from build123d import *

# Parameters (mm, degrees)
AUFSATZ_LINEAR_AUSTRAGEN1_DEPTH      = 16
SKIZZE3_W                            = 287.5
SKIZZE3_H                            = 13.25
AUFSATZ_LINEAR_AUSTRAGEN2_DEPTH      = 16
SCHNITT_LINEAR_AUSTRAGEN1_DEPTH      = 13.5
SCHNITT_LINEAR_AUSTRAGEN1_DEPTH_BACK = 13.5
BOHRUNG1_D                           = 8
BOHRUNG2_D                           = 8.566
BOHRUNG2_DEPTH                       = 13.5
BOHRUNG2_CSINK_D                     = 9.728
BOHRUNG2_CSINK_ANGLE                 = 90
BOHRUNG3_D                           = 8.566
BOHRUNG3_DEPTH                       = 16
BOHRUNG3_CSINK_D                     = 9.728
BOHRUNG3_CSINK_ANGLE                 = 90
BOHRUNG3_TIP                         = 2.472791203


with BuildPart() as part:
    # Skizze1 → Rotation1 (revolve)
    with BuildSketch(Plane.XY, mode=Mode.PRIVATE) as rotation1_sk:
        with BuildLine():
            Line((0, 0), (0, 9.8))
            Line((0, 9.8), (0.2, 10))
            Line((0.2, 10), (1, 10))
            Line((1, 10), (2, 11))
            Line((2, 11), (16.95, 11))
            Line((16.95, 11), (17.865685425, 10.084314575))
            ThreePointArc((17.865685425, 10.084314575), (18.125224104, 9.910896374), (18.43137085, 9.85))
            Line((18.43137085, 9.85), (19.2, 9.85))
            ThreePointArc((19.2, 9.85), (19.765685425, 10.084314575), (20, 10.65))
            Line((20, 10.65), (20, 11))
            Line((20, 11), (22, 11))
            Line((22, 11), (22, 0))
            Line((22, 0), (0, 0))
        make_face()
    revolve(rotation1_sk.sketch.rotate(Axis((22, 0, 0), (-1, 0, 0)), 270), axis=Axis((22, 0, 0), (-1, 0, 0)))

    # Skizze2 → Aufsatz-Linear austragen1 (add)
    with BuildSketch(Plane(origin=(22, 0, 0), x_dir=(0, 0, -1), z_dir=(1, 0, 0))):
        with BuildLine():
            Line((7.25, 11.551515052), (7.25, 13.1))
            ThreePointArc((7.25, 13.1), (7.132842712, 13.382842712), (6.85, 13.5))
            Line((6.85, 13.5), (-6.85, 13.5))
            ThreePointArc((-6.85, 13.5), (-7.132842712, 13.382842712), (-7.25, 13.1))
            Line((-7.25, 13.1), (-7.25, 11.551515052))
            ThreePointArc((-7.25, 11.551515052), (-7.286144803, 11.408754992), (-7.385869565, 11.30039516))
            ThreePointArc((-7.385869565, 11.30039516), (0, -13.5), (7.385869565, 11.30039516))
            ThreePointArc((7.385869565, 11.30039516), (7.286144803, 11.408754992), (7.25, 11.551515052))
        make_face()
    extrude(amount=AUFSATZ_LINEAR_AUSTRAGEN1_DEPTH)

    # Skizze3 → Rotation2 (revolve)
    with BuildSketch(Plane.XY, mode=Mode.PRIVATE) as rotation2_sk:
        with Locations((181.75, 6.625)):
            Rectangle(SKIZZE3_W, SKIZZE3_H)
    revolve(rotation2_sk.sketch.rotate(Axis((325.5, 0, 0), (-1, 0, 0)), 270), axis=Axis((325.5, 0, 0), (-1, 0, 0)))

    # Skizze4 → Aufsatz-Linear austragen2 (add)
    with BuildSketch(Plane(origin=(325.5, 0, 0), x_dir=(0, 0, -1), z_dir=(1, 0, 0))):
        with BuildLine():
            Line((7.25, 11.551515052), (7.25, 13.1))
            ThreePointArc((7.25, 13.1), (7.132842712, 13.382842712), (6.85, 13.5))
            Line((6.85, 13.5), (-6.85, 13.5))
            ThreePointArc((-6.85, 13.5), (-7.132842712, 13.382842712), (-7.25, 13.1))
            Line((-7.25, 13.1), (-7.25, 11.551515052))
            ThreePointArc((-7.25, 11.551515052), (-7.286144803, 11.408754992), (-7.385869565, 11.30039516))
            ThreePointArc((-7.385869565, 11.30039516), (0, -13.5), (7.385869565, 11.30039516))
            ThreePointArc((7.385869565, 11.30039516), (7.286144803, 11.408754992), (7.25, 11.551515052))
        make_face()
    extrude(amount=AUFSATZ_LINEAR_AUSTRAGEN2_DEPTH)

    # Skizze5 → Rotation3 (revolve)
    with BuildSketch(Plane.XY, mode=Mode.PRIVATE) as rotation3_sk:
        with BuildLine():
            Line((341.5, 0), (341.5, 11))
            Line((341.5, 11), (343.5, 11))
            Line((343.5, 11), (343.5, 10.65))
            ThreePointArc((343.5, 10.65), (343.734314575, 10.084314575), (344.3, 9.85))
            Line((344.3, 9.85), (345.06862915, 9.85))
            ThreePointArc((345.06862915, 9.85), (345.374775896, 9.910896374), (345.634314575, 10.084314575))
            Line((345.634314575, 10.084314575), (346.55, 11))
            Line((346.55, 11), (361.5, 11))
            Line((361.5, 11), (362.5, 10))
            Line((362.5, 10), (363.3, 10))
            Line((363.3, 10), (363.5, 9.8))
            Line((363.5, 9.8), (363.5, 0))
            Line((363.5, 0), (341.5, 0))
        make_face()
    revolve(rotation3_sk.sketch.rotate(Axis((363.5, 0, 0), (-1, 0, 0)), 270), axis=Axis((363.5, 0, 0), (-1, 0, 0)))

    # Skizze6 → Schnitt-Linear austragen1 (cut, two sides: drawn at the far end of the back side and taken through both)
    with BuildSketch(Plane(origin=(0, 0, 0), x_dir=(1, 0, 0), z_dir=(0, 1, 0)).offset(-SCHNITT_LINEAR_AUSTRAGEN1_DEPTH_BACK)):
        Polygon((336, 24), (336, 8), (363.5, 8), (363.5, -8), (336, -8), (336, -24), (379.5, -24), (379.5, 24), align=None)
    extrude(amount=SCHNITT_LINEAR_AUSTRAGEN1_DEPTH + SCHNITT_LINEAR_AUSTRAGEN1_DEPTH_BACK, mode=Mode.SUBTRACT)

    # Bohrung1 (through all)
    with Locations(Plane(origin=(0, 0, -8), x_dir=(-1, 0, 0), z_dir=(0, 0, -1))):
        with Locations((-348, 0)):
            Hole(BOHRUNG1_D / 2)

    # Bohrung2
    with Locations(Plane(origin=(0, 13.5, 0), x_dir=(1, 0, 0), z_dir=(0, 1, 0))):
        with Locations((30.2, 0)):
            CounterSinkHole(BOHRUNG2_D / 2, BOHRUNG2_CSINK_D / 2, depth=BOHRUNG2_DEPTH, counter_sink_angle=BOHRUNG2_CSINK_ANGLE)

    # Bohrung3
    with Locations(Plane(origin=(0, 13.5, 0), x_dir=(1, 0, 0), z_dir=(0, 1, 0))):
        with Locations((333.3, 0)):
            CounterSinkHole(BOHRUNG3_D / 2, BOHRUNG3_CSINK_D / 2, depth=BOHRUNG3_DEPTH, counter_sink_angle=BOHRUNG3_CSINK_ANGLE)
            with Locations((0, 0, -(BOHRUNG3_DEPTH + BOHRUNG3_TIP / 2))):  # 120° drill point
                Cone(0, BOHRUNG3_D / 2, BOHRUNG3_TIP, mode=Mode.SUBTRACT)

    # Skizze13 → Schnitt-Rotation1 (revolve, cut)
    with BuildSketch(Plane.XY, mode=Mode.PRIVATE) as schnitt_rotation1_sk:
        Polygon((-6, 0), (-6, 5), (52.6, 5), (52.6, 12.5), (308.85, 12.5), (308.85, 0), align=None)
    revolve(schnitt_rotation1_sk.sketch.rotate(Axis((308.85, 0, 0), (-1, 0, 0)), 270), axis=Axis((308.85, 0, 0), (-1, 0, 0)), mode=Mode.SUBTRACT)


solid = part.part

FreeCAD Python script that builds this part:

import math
import FreeCAD as App
import Part
import Sketcher
from FreeCAD import Vector
Q = App.Units.Quantity


def add_polygon(sketch, points):
    """Adds a closed chain of lines whose ends are joined by coincident constraints."""
    first, n = sketch.GeometryCount, len(points)
    for a, b in zip(points, points[1:] + points[:1]):
        sketch.addGeometry(Part.LineSegment(App.Vector(*a, 0), App.Vector(*b, 0)), False)
    for i in range(n):
        sketch.addConstraint(Sketcher.Constraint("Coincident", first + i, 2, first + (i + 1) % n, 1))

doc = App.newDocument("Part")
body = doc.addObject("PartDesign::Body", "Body")

# Sketch on XY plane
sketch1 = body.newObject("Sketcher::SketchObject", "Sketch")
sketch1.AttachmentSupport = (doc.getObject("XY_Plane"), [""])
sketch1.MapMode = "FlatFace"
sketch1.addGeometry(Part.LineSegment(Vector(0, 9.8, 0), Vector(0, 0, 0)), False)
sketch1.addGeometry(Part.LineSegment(Vector(0, 0, 0), Vector(22, 0, 0)), False)
sketch1.addGeometry(Part.LineSegment(Vector(22, 0, 0), Vector(22, 11, 0)), False)
sketch1.addGeometry(Part.LineSegment(Vector(22, 11, 0), Vector(20, 11, 0)), False)
sketch1.addGeometry(Part.LineSegment(Vector(20, 11, 0), Vector(20, 10.65, 0)), False)
sketch1.addGeometry(Part.ArcOfCircle(Part.Circle(Vector(19.2, 10.65, 0), Vector(0, 0, 1), 0.8), math.radians(-90), math.radians(0)), False)
sketch1.addGeometry(Part.LineSegment(Vector(19.2, 9.85, 0), Vector(18.431371, 9.85, 0)), False)
sketch1.addGeometry(Part.ArcOfCircle(Part.Circle(Vector(18.431371, 10.65, 0), Vector(0, 0, 1), 0.8), math.radians(-135), math.radians(-90)), False)
sketch1.addGeometry(Part.LineSegment(Vector(17.865685, 10.084315, 0), Vector(16.95, 11, 0)), False)
sketch1.addGeometry(Part.LineSegment(Vector(16.95, 11, 0), Vector(2, 11, 0)), False)
sketch1.addGeometry(Part.LineSegment(Vector(2, 11, 0), Vector(1, 10, 0)), False)
sketch1.addGeometry(Part.LineSegment(Vector(1, 10, 0), Vector(0.2, 10, 0)), False)
sketch1.addGeometry(Part.LineSegment(Vector(0.2, 10, 0), Vector(0, 9.8, 0)), False)
sketch1.addConstraint(Sketcher.Constraint("Coincident", 0, 2, 1, 1))
sketch1.addConstraint(Sketcher.Constraint("Coincident", 1, 2, 2, 1))
sketch1.addConstraint(Sketcher.Constraint("Coincident", 2, 2, 3, 1))
sketch1.addConstraint(Sketcher.Constraint("Coincident", 3, 2, 4, 1))
sketch1.addConstraint(Sketcher.Constraint("Tangent", 4, 2, 5, 2))
sketch1.addConstraint(Sketcher.Constraint("Tangent", 5, 1, 6, 1))
sketch1.addConstraint(Sketcher.Constraint("Tangent", 6, 2, 7, 2))
sketch1.addConstraint(Sketcher.Constraint("Tangent", 7, 1, 8, 1))
sketch1.addConstraint(Sketcher.Constraint("Coincident", 8, 2, 9, 1))
sketch1.addConstraint(Sketcher.Constraint("Coincident", 9, 2, 10, 1))
sketch1.addConstraint(Sketcher.Constraint("Coincident", 10, 2, 11, 1))
sketch1.addConstraint(Sketcher.Constraint("Coincident", 11, 2, 12, 1))
sketch1.addConstraint(Sketcher.Constraint("Coincident", 12, 2, 0, 1))
sketch1.addConstraint(Sketcher.Constraint("Vertical", 0))
sketch1.addConstraint(Sketcher.Constraint("Horizontal", 1))
sketch1.addConstraint(Sketcher.Constraint("Vertical", 2))
sketch1.addConstraint(Sketcher.Constraint("Horizontal", 3))
sketch1.addConstraint(Sketcher.Constraint("Vertical", 4))
sketch1.addConstraint(Sketcher.Constraint("Horizontal", 6))
sketch1.addConstraint(Sketcher.Constraint("Horizontal", 9))
sketch1.addConstraint(Sketcher.Constraint("Horizontal", 11))
sketch1.addConstraint(Sketcher.Constraint("Coincident", 0, 2, -1, 1))
sketch1.addConstraint(Sketcher.Constraint("Equal", 5, 7))
sketch1.addConstraint(Sketcher.Constraint("Perpendicular", 8, 10))
sketch1.addConstraint(Sketcher.Constraint("Parallel", 10, 12))
sketch1.addConstraint(Sketcher.Constraint("Horizontal", 3, 2, 8, 2))
sketch1.addConstraint(Sketcher.Constraint("Radius", 5, 0.8))
sketch1.addConstraint(Sketcher.Constraint("DistanceX", 1, 1, 1, 2, 22.0))
sketch1.addConstraint(Sketcher.Constraint("DistanceX", 3, 2, 3, 1, 2.0))
sketch1.addConstraint(Sketcher.Constraint("DistanceY", 2, 1, 2, 2, 11.0))
sketch1.addConstraint(Sketcher.Constraint("Angle", 8, Q("135 deg")))
sketch1.addConstraint(Sketcher.Constraint("DistanceX", 11, 2, 11, 1, 0.8))
sketch1.addConstraint(Sketcher.Constraint("DistanceY", 0, 2, 0, 1, 9.8))
sketch1.addConstraint(Sketcher.Constraint("DistanceX", -1, 1, 10, 2, 1.0))
sketch1.addConstraint(Sketcher.Constraint("DistanceX", 9, 2, 9, 1, 14.95))
sketch1.addConstraint(Sketcher.Constraint("DistanceY", 4, 2, 4, 1, 0.35))
revolution = body.newObject("PartDesign::Revolution", "Revolution")
revolution.Profile = sketch1
revolution.ReferenceAxis = (sketch1, ["H_Axis"])
revolution.Angle = 360

# Sketch on YZ plane
sketch2 = body.newObject("Sketcher::SketchObject", "Sketch001")
sketch2.AttachmentSupport = (doc.getObject("YZ_Plane"), [""])
sketch2.MapMode = "FlatFace"
sketch2.AttachmentOffset = App.Placement(Vector(0, 0, 22), App.Rotation())
sketch2.addGeometry(Part.LineSegment(Vector(11.551515, -7.25, 0), Vector(13.1, -7.25, 0)), False)
sketch2.addGeometry(Part.ArcOfCircle(Part.Circle(Vector(13.1, -6.85, 0), Vector(0, 0, 1), 0.4), math.radians(-90), math.radians(0)), False)
sketch2.addGeometry(Part.LineSegment(Vector(13.5, -6.85, 0), Vector(13.5, 6.85, 0)), False)
sketch2.addGeometry(Part.ArcOfCircle(Part.Circle(Vector(13.1, 6.85, 0), Vector(0, 0, 1), 0.4), math.radians(0), math.radians(90)), False)
sketch2.addGeometry(Part.LineSegment(Vector(13.1, 7.25, 0), Vector(11.551515, 7.25, 0)), False)
sketch2.addGeometry(Part.ArcOfCircle(Part.Circle(Vector(11.551515, 7.55, 0), Vector(0, 0, 1), 0.3), math.radians(-146.831613), math.radians(-90)), False)
sketch2.addGeometry(Part.ArcOfCircle(Part.Circle(Vector(0, 0, 0), Vector(0, 0, 1), 13.5), math.radians(33.168387), math.radians(326.831613)), False)
sketch2.addGeometry(Part.ArcOfCircle(Part.Circle(Vector(11.551515, -7.55, 0), Vector(0, 0, 1), 0.3), math.radians(90), math.radians(146.831613)), False)
sketch2.addConstraint(Sketcher.Constraint("Tangent", 0, 2, 1, 1))
sketch2.addConstraint(Sketcher.Constraint("Tangent", 1, 2, 2, 1))
sketch2.addConstraint(Sketcher.Constraint("Tangent", 2, 2, 3, 1))
sketch2.addConstraint(Sketcher.Constraint("Tangent", 3, 2, 4, 1))
sketch2.addConstraint(Sketcher.Constraint("Tangent", 4, 2, 5, 2))
sketch2.addConstraint(Sketcher.Constraint("Tangent", 5, 1, 6, 1))
sketch2.addConstraint(Sketcher.Constraint("Tangent", 6, 2, 7, 2))
sketch2.addConstraint(Sketcher.Constraint("Tangent", 7, 1, 0, 1))
sketch2.addConstraint(Sketcher.Constraint("Horizontal", 0))
sketch2.addConstraint(Sketcher.Constraint("Vertical", 2))
sketch2.addConstraint(Sketcher.Constraint("Horizontal", 4))
sketch2.addConstraint(Sketcher.Constraint("Coincident", 6, 3, -1, 1))
sketch2.addConstraint(Sketcher.Constraint("Equal", 1, 3))
sketch2.addConstraint(Sketcher.Constraint("Equal", 5, 7))
sketch2.addConstraint(Sketcher.Constraint("Vertical", 5, 3, 7, 3))
sketch2.addConstraint(Sketcher.Constraint("Radius", 1, 0.4))
sketch2.addConstraint(Sketcher.Constraint("Radius", 5, 0.3))
sketch2.addConstraint(Sketcher.Constraint("Radius", 6, 13.5))
sketch2.addConstraint(Sketcher.Constraint("DistanceY", 2, 1, 2, 2, 13.7))
sketch2.addConstraint(Sketcher.Constraint("DistanceX", -1, 1, 1, 3, 13.1))
pad1 = body.newObject("PartDesign::Pad", "Pad")
pad1.Profile = sketch2
pad1.Length = 16

# Sketch on XY plane
sketch3 = body.newObject("Sketcher::SketchObject", "Sketch002")
sketch3.AttachmentSupport = (doc.getObject("XY_Plane"), [""])
sketch3.MapMode = "FlatFace"
add_polygon(sketch3, [(38, 13.25), (38, 0), (325.5, 0), (325.5, 13.25)])  # lines 0-3
sketch3.addConstraint(Sketcher.Constraint("Vertical", 0))
sketch3.addConstraint(Sketcher.Constraint("Horizontal", 1))
sketch3.addConstraint(Sketcher.Constraint("Vertical", 2))
sketch3.addConstraint(Sketcher.Constraint("Horizontal", 3))
sketch3.addConstraint(Sketcher.Constraint("PointOnObject", 0, 2, -1))
sketch3.addConstraint(Sketcher.Constraint("DistanceX", 1, 1, 1, 2, 287.5))
sketch3.addConstraint(Sketcher.Constraint("DistanceX", -1, 1, 0, 2, 38.0))
sketch3.addConstraint(Sketcher.Constraint("DistanceY", 0, 2, 0, 1, 13.25))
revolution2 = body.newObject("PartDesign::Revolution", "Revolution001")
revolution2.Profile = sketch3
revolution2.ReferenceAxis = (sketch3, ["H_Axis"])
revolution2.Angle = 360

# Sketch on YZ plane
sketch4 = body.newObject("Sketcher::SketchObject", "Sketch003")
sketch4.AttachmentSupport = (doc.getObject("YZ_Plane"), [""])
sketch4.MapMode = "FlatFace"
sketch4.AttachmentOffset = App.Placement(Vector(0, 0, 325.5), App.Rotation())
sketch4.addGeometry(Part.LineSegment(Vector(11.551515, -7.25, 0), Vector(13.1, -7.25, 0)), False)
sketch4.addGeometry(Part.ArcOfCircle(Part.Circle(Vector(13.1, -6.85, 0), Vector(0, 0, 1), 0.4), math.radians(-90), math.radians(0)), False)
sketch4.addGeometry(Part.LineSegment(Vector(13.5, -6.85, 0), Vector(13.5, 6.85, 0)), False)
sketch4.addGeometry(Part.ArcOfCircle(Part.Circle(Vector(13.1, 6.85, 0), Vector(0, 0, 1), 0.4), math.radians(0), math.radians(90)), False)
sketch4.addGeometry(Part.LineSegment(Vector(13.1, 7.25, 0), Vector(11.551515, 7.25, 0)), False)
sketch4.addGeometry(Part.ArcOfCircle(Part.Circle(Vector(11.551515, 7.55, 0), Vector(0, 0, 1), 0.3), math.radians(-146.831613), math.radians(-90)), False)
sketch4.addGeometry(Part.ArcOfCircle(Part.Circle(Vector(0, 0, 0), Vector(0, 0, 1), 13.5), math.radians(33.168387), math.radians(326.831613)), False)
sketch4.addGeometry(Part.ArcOfCircle(Part.Circle(Vector(11.551515, -7.55, 0), Vector(0, 0, 1), 0.3), math.radians(90), math.radians(146.831613)), False)
sketch4.addConstraint(Sketcher.Constraint("Tangent", 0, 2, 1, 1))
sketch4.addConstraint(Sketcher.Constraint("Tangent", 1, 2, 2, 1))
sketch4.addConstraint(Sketcher.Constraint("Tangent", 2, 2, 3, 1))
sketch4.addConstraint(Sketcher.Constraint("Tangent", 3, 2, 4, 1))
sketch4.addConstraint(Sketcher.Constraint("Tangent", 4, 2, 5, 2))
sketch4.addConstraint(Sketcher.Constraint("Tangent", 5, 1, 6, 1))
sketch4.addConstraint(Sketcher.Constraint("Tangent", 6, 2, 7, 2))
sketch4.addConstraint(Sketcher.Constraint("Tangent", 7, 1, 0, 1))
sketch4.addConstraint(Sketcher.Constraint("Horizontal", 0))
sketch4.addConstraint(Sketcher.Constraint("Vertical", 2))
sketch4.addConstraint(Sketcher.Constraint("Horizontal", 4))
sketch4.addConstraint(Sketcher.Constraint("Coincident", 6, 3, -1, 1))
sketch4.addConstraint(Sketcher.Constraint("Equal", 1, 3))
sketch4.addConstraint(Sketcher.Constraint("Equal", 5, 7))
sketch4.addConstraint(Sketcher.Constraint("Vertical", 5, 3, 7, 3))
sketch4.addConstraint(Sketcher.Constraint("Radius", 1, 0.4))
sketch4.addConstraint(Sketcher.Constraint("Radius", 5, 0.3))
sketch4.addConstraint(Sketcher.Constraint("Radius", 6, 13.5))
sketch4.addConstraint(Sketcher.Constraint("DistanceY", 2, 1, 2, 2, 13.7))
sketch4.addConstraint(Sketcher.Constraint("DistanceX", -1, 1, 1, 3, 13.1))
pad2 = body.newObject("PartDesign::Pad", "Pad001")
pad2.Profile = sketch4
pad2.Length = 16

# Sketch on XY plane
sketch5 = body.newObject("Sketcher::SketchObject", "Sketch004")
sketch5.AttachmentSupport = (doc.getObject("XY_Plane"), [""])
sketch5.MapMode = "FlatFace"
sketch5.addGeometry(Part.LineSegment(Vector(341.5, 11, 0), Vector(341.5, 0, 0)), False)
sketch5.addGeometry(Part.LineSegment(Vector(341.5, 0, 0), Vector(363.5, 0, 0)), False)
sketch5.addGeometry(Part.LineSegment(Vector(363.5, 0, 0), Vector(363.5, 9.8, 0)), False)
sketch5.addGeometry(Part.LineSegment(Vector(363.5, 9.8, 0), Vector(363.3, 10, 0)), False)
sketch5.addGeometry(Part.LineSegment(Vector(363.3, 10, 0), Vector(362.5, 10, 0)), False)
sketch5.addGeometry(Part.LineSegment(Vector(362.5, 10, 0), Vector(361.5, 11, 0)), False)
sketch5.addGeometry(Part.LineSegment(Vector(361.5, 11, 0), Vector(346.55, 11, 0)), False)
sketch5.addGeometry(Part.LineSegment(Vector(346.55, 11, 0), Vector(345.634315, 10.084315, 0)), False)
sketch5.addGeometry(Part.ArcOfCircle(Part.Circle(Vector(345.068629, 10.65, 0), Vector(0, 0, 1), 0.8), math.radians(-90), math.radians(-45)), False)
sketch5.addGeometry(Part.LineSegment(Vector(345.068629, 9.85, 0), Vector(344.3, 9.85, 0)), False)
sketch5.addGeometry(Part.ArcOfCircle(Part.Circle(Vector(344.3, 10.65, 0), Vector(0, 0, 1), 0.8), math.radians(180), math.radians(270)), False)
sketch5.addGeometry(Part.LineSegment(Vector(343.5, 10.65, 0), Vector(343.5, 11, 0)), False)
sketch5.addGeometry(Part.LineSegment(Vector(343.5, 11, 0), Vector(341.5, 11, 0)), False)
sketch5.addConstraint(Sketcher.Constraint("Coincident", 0, 2, 1, 1))
sketch5.addConstraint(Sketcher.Constraint("Coincident", 1, 2, 2, 1))
sketch5.addConstraint(Sketcher.Constraint("Coincident", 2, 2, 3, 1))
sketch5.addConstraint(Sketcher.Constraint("Coincident", 3, 2, 4, 1))
sketch5.addConstraint(Sketcher.Constraint("Coincident", 4, 2, 5, 1))
sketch5.addConstraint(Sketcher.Constraint("Coincident", 5, 2, 6, 1))
sketch5.addConstraint(Sketcher.Constraint("Coincident", 6, 2, 7, 1))
sketch5.addConstraint(Sketcher.Constraint("Tangent", 7, 2, 8, 2))
sketch5.addConstraint(Sketcher.Constraint("Tangent", 8, 1, 9, 1))
sketch5.addConstraint(Sketcher.Constraint("Tangent", 9, 2, 10, 2))
sketch5.addConstraint(Sketcher.Constraint("Tangent", 10, 1, 11, 1))
sketch5.addConstraint(Sketcher.Constraint("Coincident", 11, 2, 12, 1))
sketch5.addConstraint(Sketcher.Constraint("Coincident", 12, 2, 0, 1))
sketch5.addConstraint(Sketcher.Constraint("Vertical", 0))
sketch5.addConstraint(Sketcher.Constraint("Horizontal", 1))
sketch5.addConstraint(Sketcher.Constraint("Vertical", 2))
sketch5.addConstraint(Sketcher.Constraint("Horizontal", 4))
sketch5.addConstraint(Sketcher.Constraint("Horizontal", 6))
sketch5.addConstraint(Sketcher.Constraint("Horizontal", 9))
sketch5.addConstraint(Sketcher.Constraint("Vertical", 11))
sketch5.addConstraint(Sketcher.Constraint("Horizontal", 12))
sketch5.addConstraint(Sketcher.Constraint("Equal", 8, 10))
sketch5.addConstraint(Sketcher.Constraint("PointOnObject", 0, 2, -1))
sketch5.addConstraint(Sketcher.Constraint("Parallel", 3, 5))
sketch5.addConstraint(Sketcher.Constraint("Perpendicular", 5, 7))
sketch5.addConstraint(Sketcher.Constraint("Horizontal", 6, 2, 11, 2))
sketch5.addConstraint(Sketcher.Constraint("Radius", 8, 0.8))
sketch5.addConstraint(Sketcher.Constraint("DistanceX", 1, 1, 1, 2, 22.0))
sketch5.addConstraint(Sketcher.Constraint("DistanceX", 12, 2, 12, 1, 2.0))
sketch5.addConstraint(Sketcher.Constraint("DistanceY", 0, 2, 0, 1, 11.0))
sketch5.addConstraint(Sketcher.Constraint("Angle", 3, Q("135 deg")))
sketch5.addConstraint(Sketcher.Constraint("DistanceX", 4, 2, 4, 1, 0.8))
sketch5.addConstraint(Sketcher.Constraint("DistanceY", 2, 1, 2, 2, 9.8))
sketch5.addConstraint(Sketcher.Constraint("DistanceY", -1, 1, 3, 2, 10.0))
sketch5.addConstraint(Sketcher.Constraint("DistanceX", 6, 2, 6, 1, 14.95))
sketch5.addConstraint(Sketcher.Constraint("DistanceY", 11, 1, 11, 2, 0.35))
sketch5.addConstraint(Sketcher.Constraint("DistanceX", -1, 1, 10, 3, 344.3))
revolution3 = body.newObject("PartDesign::Revolution", "Revolution002")
revolution3.Profile = sketch5
revolution3.ReferenceAxis = (sketch5, ["H_Axis"])
revolution3.Angle = 360

# Sketch on XZ plane
sketch6 = body.newObject("Sketcher::SketchObject", "Sketch005")
sketch6.AttachmentSupport = (doc.getObject("XZ_Plane"), [""])
sketch6.MapMode = "FlatFace"
add_polygon(sketch6, [(336, -24), (336, -8), (363.5, -8), (363.5, 8), (336, 8), (336, 24), (379.5, 24), (379.5, -24)])  # lines 0-7
sketch6.addConstraint(Sketcher.Constraint("Vertical", 0))
sketch6.addConstraint(Sketcher.Constraint("Horizontal", 1))
sketch6.addConstraint(Sketcher.Constraint("Vertical", 2))
sketch6.addConstraint(Sketcher.Constraint("Horizontal", 3))
sketch6.addConstraint(Sketcher.Constraint("Vertical", 4))
sketch6.addConstraint(Sketcher.Constraint("Horizontal", 5))
sketch6.addConstraint(Sketcher.Constraint("Vertical", 6))
sketch6.addConstraint(Sketcher.Constraint("Horizontal", 7))
sketch6.addConstraint(Sketcher.Constraint("Symmetric", 0, 2, 3, 2, -1))
sketch6.addConstraint(Sketcher.Constraint("Equal", 0, 2))
sketch6.addConstraint(Sketcher.Constraint("Equal", 2, 4))
sketch6.addConstraint(Sketcher.Constraint("DistanceY", 0, 1, 0, 2, 16.0))
sketch6.addConstraint(Sketcher.Constraint("DistanceX", 1, 1, 1, 2, 27.5))
sketch6.addConstraint(Sketcher.Constraint("DistanceX", 5, 1, 5, 2, 43.5))
sketch6.addConstraint(Sketcher.Constraint("DistanceX", -1, 1, 0, 2, 336.0))
pocket1 = body.newObject("PartDesign::Pocket", "Pocket")
pocket1.Profile = sketch6
pocket1.Type = "ThroughAll"
pocket1.Midplane = True

# Sketch on XY plane
sketch7 = body.newObject("Sketcher::SketchObject", "Sketch006")
sketch7.AttachmentSupport = (doc.getObject("XY_Plane"), [""])
sketch7.MapMode = "FlatFace"
sketch7.AttachmentOffset = App.Placement(Vector(0, 0, -8), App.Rotation())
sketch7.addGeometry(Part.Circle(Vector(348, 0, 0), Vector(0, 0, 1), 4), False)
sketch7.addConstraint(Sketcher.Constraint("PointOnObject", 0, 3, -1))
sketch7.addConstraint(Sketcher.Constraint("Diameter", 0, 8.0))
sketch7.addConstraint(Sketcher.Constraint("DistanceX", -1, 1, 0, 3, 348.0))
doc.recompute()
hole = body.newObject("PartDesign::Hole", "Hole")
hole.Profile = sketch7
hole.ThreadType = "None"
hole.Diameter = 8
hole.DepthType = "ThroughAll"
hole.Reversed = True

# Sketch on XZ plane
sketch8 = body.newObject("Sketcher::SketchObject", "Sketch007")
sketch8.AttachmentSupport = (doc.getObject("XZ_Plane"), [""])
sketch8.MapMode = "FlatFace"
sketch8.AttachmentOffset = App.Placement(Vector(0, 0, -13.5), App.Rotation())
sketch8.addGeometry(Part.Circle(Vector(30.2, 0, 0), Vector(0, 0, 1), 4.283), False)
sketch8.addConstraint(Sketcher.Constraint("PointOnObject", 0, 3, -1))
sketch8.addConstraint(Sketcher.Constraint("Diameter", 0, 8.566))
sketch8.addConstraint(Sketcher.Constraint("DistanceX", -1, 1, 0, 3, 30.2))
doc.recompute()
hole2 = body.newObject("PartDesign::Hole", "Hole001")
hole2.Profile = sketch8
hole2.ThreadType = "None"
hole2.Diameter = 8.566
hole2.DepthType = "Dimension"
hole2.Depth = 13.5
hole2.DrillPoint = "Flat"
hole2.HoleCutType = "Countersink"
hole2.HoleCutDiameter = 9.728
hole2.HoleCutCountersinkAngle = 90
hole2.Reversed = True

# Sketch on XZ plane
sketch9 = body.newObject("Sketcher::SketchObject", "Sketch008")
sketch9.AttachmentSupport = (doc.getObject("XZ_Plane"), [""])
sketch9.MapMode = "FlatFace"
sketch9.AttachmentOffset = App.Placement(Vector(0, 0, -13.5), App.Rotation())
sketch9.addGeometry(Part.Circle(Vector(333.3, 0, 0), Vector(0, 0, 1), 4.283), False)
sketch9.addConstraint(Sketcher.Constraint("PointOnObject", 0, 3, -1))
sketch9.addConstraint(Sketcher.Constraint("Diameter", 0, 8.566))
sketch9.addConstraint(Sketcher.Constraint("DistanceX", -1, 1, 0, 3, 333.3))
doc.recompute()
hole3 = body.newObject("PartDesign::Hole", "Hole002")
hole3.Profile = sketch9
hole3.ThreadType = "None"
hole3.Diameter = 8.566
hole3.DepthType = "Dimension"
hole3.Depth = 16
hole3.DrillPoint = "Angled"
hole3.DrillPointAngle = 120
hole3.HoleCutType = "Countersink"
hole3.HoleCutDiameter = 9.728
hole3.HoleCutCountersinkAngle = 90
hole3.Reversed = True

# Sketch on XY plane
sketch10 = body.newObject("Sketcher::SketchObject", "Sketch009")
sketch10.AttachmentSupport = (doc.getObject("XY_Plane"), [""])
sketch10.MapMode = "FlatFace"
add_polygon(sketch10, [(-6, 5), (-6, 0), (308.85, 0), (308.85, 12.5), (52.6, 12.5), (52.6, 5)])  # lines 0-5
sketch10.addConstraint(Sketcher.Constraint("Vertical", 0))
sketch10.addConstraint(Sketcher.Constraint("Horizontal", 1))
sketch10.addConstraint(Sketcher.Constraint("Vertical", 2))
sketch10.addConstraint(Sketcher.Constraint("Horizontal", 3))
sketch10.addConstraint(Sketcher.Constraint("Vertical", 4))
sketch10.addConstraint(Sketcher.Constraint("Horizontal", 5))
sketch10.addConstraint(Sketcher.Constraint("PointOnObject", 0, 2, -1))
sketch10.addConstraint(Sketcher.Constraint("DistanceY", 0, 2, 0, 1, 5.0))
sketch10.addConstraint(Sketcher.Constraint("DistanceX", 5, 2, 5, 1, 58.6))
sketch10.addConstraint(Sketcher.Constraint("DistanceY", 2, 1, 2, 2, 12.5))
sketch10.addConstraint(Sketcher.Constraint("DistanceX", 0, 2, -1, 1, 6.0))
sketch10.addConstraint(Sketcher.Constraint("DistanceX", 1, 1, 1, 2, 314.85))
groove = body.newObject("PartDesign::Groove", "Groove")
groove.Profile = sketch10
groove.ReferenceAxis = (sketch10, ["H_Axis"])
groove.Angle = 360

doc.recompute()
